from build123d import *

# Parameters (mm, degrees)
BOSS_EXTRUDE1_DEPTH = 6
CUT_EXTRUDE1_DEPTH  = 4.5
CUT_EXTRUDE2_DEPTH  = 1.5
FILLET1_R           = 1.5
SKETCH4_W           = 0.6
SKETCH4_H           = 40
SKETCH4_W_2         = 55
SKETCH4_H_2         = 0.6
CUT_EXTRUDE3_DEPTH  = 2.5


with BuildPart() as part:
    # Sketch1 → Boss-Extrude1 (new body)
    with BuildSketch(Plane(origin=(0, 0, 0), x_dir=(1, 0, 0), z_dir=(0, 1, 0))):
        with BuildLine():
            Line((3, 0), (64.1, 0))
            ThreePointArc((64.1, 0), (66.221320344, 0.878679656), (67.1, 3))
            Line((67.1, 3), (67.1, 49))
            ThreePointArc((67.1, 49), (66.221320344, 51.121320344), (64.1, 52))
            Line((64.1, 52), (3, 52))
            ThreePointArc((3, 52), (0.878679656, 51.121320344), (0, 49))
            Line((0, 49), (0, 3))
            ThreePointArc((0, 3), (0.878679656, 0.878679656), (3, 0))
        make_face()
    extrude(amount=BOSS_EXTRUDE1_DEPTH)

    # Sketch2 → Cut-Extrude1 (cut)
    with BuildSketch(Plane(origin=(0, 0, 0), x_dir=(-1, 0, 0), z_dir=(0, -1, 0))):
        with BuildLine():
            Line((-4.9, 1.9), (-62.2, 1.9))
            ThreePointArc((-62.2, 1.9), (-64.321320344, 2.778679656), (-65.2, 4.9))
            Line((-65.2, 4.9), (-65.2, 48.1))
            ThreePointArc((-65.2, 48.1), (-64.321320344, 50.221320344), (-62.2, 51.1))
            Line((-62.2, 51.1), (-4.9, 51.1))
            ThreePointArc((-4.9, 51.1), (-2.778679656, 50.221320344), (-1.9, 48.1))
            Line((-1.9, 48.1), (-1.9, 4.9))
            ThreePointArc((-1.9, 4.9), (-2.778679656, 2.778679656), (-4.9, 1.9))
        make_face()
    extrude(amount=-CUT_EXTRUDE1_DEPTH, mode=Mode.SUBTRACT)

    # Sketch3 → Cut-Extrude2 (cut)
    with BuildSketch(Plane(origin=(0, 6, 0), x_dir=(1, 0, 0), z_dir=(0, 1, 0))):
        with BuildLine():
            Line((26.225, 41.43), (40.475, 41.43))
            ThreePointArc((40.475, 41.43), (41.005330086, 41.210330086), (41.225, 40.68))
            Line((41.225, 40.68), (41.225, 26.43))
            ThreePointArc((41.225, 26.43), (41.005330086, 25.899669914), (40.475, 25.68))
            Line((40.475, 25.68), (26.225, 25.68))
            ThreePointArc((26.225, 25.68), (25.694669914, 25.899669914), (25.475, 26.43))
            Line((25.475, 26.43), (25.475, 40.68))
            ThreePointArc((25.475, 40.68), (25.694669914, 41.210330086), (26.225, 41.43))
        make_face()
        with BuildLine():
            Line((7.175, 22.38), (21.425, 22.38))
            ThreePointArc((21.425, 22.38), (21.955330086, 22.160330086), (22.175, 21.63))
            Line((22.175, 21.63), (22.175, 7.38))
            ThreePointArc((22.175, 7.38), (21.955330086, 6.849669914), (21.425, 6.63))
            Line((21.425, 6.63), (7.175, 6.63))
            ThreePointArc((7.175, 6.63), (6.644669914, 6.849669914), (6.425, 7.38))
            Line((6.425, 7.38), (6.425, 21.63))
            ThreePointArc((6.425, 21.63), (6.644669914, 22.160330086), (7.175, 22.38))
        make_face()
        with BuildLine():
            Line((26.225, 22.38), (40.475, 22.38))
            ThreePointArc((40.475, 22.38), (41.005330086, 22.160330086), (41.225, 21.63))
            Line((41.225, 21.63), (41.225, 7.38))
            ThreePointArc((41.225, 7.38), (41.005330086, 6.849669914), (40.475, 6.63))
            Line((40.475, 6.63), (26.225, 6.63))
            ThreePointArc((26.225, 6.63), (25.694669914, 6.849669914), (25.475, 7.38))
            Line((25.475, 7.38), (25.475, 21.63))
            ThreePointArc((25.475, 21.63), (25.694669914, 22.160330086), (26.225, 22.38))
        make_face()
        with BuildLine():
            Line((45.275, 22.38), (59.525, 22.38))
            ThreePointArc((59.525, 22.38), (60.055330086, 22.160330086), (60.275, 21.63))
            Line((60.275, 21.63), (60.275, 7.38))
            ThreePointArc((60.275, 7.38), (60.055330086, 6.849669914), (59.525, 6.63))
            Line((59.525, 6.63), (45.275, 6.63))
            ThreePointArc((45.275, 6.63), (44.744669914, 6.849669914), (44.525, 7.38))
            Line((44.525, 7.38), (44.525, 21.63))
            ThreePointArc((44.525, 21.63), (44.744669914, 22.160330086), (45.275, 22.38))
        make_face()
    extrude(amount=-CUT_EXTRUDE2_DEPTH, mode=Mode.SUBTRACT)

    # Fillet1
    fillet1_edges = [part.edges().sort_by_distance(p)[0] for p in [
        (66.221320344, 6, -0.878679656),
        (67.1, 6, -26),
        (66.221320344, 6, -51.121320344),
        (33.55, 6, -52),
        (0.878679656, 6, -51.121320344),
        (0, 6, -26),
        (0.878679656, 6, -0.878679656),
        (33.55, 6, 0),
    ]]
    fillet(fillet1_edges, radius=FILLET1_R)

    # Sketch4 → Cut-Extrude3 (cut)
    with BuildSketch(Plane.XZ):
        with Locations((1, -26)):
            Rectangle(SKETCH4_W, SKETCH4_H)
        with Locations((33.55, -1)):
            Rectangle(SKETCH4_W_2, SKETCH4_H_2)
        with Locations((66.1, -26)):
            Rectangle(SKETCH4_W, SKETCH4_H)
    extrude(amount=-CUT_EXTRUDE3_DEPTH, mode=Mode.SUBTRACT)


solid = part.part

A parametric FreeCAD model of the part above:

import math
import FreeCAD as App
import Part
import Sketcher
from FreeCAD import Vector
Q = App.Units.Quantity


def edges_at(feature, points):
    """Names of the edges that pass closest to the given points."""
    edges = feature.Shape.Edges
    near = lambda p: min(range(len(edges)), key=lambda i: edges[i].distToShape(Part.Vertex(*p))[0])
    return sorted({f"Edge{near(p) + 1}" for p in points})

doc = App.newDocument("Part")
body = doc.addObject("PartDesign::Body", "Body")

# Sketch on XZ plane
sketch1 = body.newObject("Sketcher::SketchObject", "Sketch")
sketch1.AttachmentSupport = (doc.getObject("XZ_Plane"), [""])
sketch1.MapMode = "FlatFace"
sketch1.addGeometry([
    Part.LineSegment(Vector(3, 0, 0), Vector(64.1, 0, 0)),  # 0
    Part.ArcOfCircle(Part.Circle(Vector(64.1, -3, 0), Vector(0, 0, 1), 3), math.radians(0), math.radians(90)),  # 1
    Part.LineSegment(Vector(67.1, -3, 0), Vector(67.1, -49, 0)),  # 2
    Part.ArcOfCircle(Part.Circle(Vector(64.1, -49, 0), Vector(0, 0, 1), 3), math.radians(-90), math.radians(0)),  # 3
    Part.LineSegment(Vector(64.1, -52, 0), Vector(3, -52, 0)),  # 4
    Part.ArcOfCircle(Part.Circle(Vector(3, -49, 0), Vector(0, 0, 1), 3), math.radians(180), math.radians(270)),  # 5
    Part.LineSegment(Vector(0, -49, 0), Vector(0, -3, 0)),  # 6
    Part.ArcOfCircle(Part.Circle(Vector(3, -3, 0), Vector(0, 0, 1), 3), math.radians(90), math.radians(180)),  # 7
], False)
sketch1.addConstraint([
    Sketcher.Constraint("Tangent", 0, 2, 1, 2),
    Sketcher.Constraint("Tangent", 1, 1, 2, 1),
    Sketcher.Constraint("Tangent", 2, 2, 3, 2),
    Sketcher.Constraint("Tangent", 3, 1, 4, 1),
    Sketcher.Constraint("Tangent", 4, 2, 5, 2),
    Sketcher.Constraint("Tangent", 5, 1, 6, 1),
    Sketcher.Constraint("Tangent", 6, 2, 7, 2),
    Sketcher.Constraint("Tangent", 7, 1, 0, 1),
    Sketcher.Constraint("Horizontal", 0),
    Sketcher.Constraint("Vertical", 2),
    Sketcher.Constraint("Horizontal", 4),
    Sketcher.Constraint("Vertical", 6),
    Sketcher.Constraint("Equal", 1, 3),
    Sketcher.Constraint("Equal", 3, 5),
    Sketcher.Constraint("Equal", 5, 7),
    Sketcher.Constraint("PointOnObject", 0, 2, -1),
    Sketcher.Constraint("PointOnObject", 5, 1, -2),
    Sketcher.Constraint("Radius", 1, Q("3 mm")),
    Sketcher.Constraint("DistanceY", 2, 2, 2, 1, Q("46 mm")),
    Sketcher.Constraint("DistanceX", 0, 1, 0, 2, Q("61.1 mm")),
])
pad1 = body.newObject("PartDesign::Pad", "Pad")
pad1.Profile = sketch1
pad1.Length = 6
pad1.Reversed = True

# Sketch on XZ plane
sketch2 = body.newObject("Sketcher::SketchObject", "Sketch001")
sketch2.AttachmentSupport = (doc.getObject("XZ_Plane"), [""])
sketch2.MapMode = "FlatFace"
sketch2.addGeometry([
    Part.LineSegment(Vector(62.2, -1.9, 0), Vector(4.9, -1.9, 0)),  # 0
    Part.ArcOfCircle(Part.Circle(Vector(4.9, -4.9, 0), Vector(0, 0, 1), 3), math.radians(90), math.radians(180)),  # 1
    Part.LineSegment(Vector(1.9, -4.9, 0), Vector(1.9, -48.1, 0)),  # 2
    Part.ArcOfCircle(Part.Circle(Vector(4.9, -48.1, 0), Vector(0, 0, 1), 3), math.radians(180), math.radians(270)),  # 3
    Part.LineSegment(Vector(4.9, -51.1, 0), Vector(62.2, -51.1, 0)),  # 4
    Part.ArcOfCircle(Part.Circle(Vector(62.2, -48.1, 0), Vector(0, 0, 1), 3), math.radians(-90), math.radians(0)),  # 5
    Part.LineSegment(Vector(65.2, -48.1, 0), Vector(65.2, -4.9, 0)),  # 6
    Part.ArcOfCircle(Part.Circle(Vector(62.2, -4.9, 0), Vector(0, 0, 1), 3), math.radians(0), math.radians(90)),  # 7
], False)
sketch2.addConstraint([
    Sketcher.Constraint("Tangent", 0, 2, 1, 1),
    Sketcher.Constraint("Tangent", 1, 2, 2, 1),
    Sketcher.Constraint("Tangent", 2, 2, 3, 1),
    Sketcher.Constraint("Tangent", 3, 2, 4, 1),
    Sketcher.Constraint("Tangent", 4, 2, 5, 1),
    Sketcher.Constraint("Tangent", 5, 2, 6, 1),
    Sketcher.Constraint("Tangent", 6, 2, 7, 1),
    Sketcher.Constraint("Tangent", 7, 2, 0, 1),
    Sketcher.Constraint("Horizontal", 0),
    Sketcher.Constraint("Vertical", 2),
    Sketcher.Constraint("Horizontal", 4),
    Sketcher.Constraint("Vertical", 6),
    Sketcher.Constraint("Equal", 1, 3),
    Sketcher.Constraint("Equal", 3, 5),
    Sketcher.Constraint("Equal", 5, 7),
    Sketcher.Constraint("Radius", 1, Q("3 mm")),
    Sketcher.Constraint("DistanceX", 0, 2, 0, 1, Q("57.3 mm")),
    Sketcher.Constraint("DistanceY", 2, 2, 2, 1, Q("43.2 mm")),
    Sketcher.Constraint("DistanceX", -1, 1, 1, 3, Q("4.9 mm")),
    Sketcher.Constraint("DistanceY", 1, 3, -1, 1, Q("4.9 mm")),
])
pocket1 = body.newObject("PartDesign::Pocket", "Pocket")
pocket1.Profile = sketch2
pocket1.Length = 4.5

# Sketch on XZ plane
sketch3 = body.newObject("Sketcher::SketchObject", "Sketch002")
sketch3.AttachmentSupport = (doc.getObject("XZ_Plane"), [""])
sketch3.MapMode = "FlatFace"
sketch3.AttachmentOffset = App.Placement(Vector(0, 0, -6), App.Rotation())
sketch3.addGeometry([
    Part.LineSegment(Vector(40.5, -41.4, 0), Vector(26.2, -41.4, 0)),  # 0
    Part.ArcOfCircle(Part.Circle(Vector(26.2, -40.7, 0), Vector(0, 0, 1), 0.8), math.radians(180), math.radians(270)),  # 1
    Part.LineSegment(Vector(25.5, -40.7, 0), Vector(25.5, -26.4, 0)),  # 2
    Part.ArcOfCircle(Part.Circle(Vector(26.2, -26.4, 0), Vector(0, 0, 1), 0.8), math.radians(90), math.radians(180)),  # 3
    Part.LineSegment(Vector(26.2, -25.7, 0), Vector(40.5, -25.7, 0)),  # 4
    Part.ArcOfCircle(Part.Circle(Vector(40.5, -26.4, 0), Vector(0, 0, 1), 0.8), math.radians(0), math.radians(90)),  # 5
    Part.LineSegment(Vector(41.2, -26.4, 0), Vector(41.2, -40.7, 0)),  # 6
    Part.ArcOfCircle(Part.Circle(Vector(40.5, -40.7, 0), Vector(0, 0, 1), 0.8), math.radians(-90), math.radians(0)),  # 7
    Part.LineSegment(Vector(21.4, -22.4, 0), Vector(7.2, -22.4, 0)),  # 8
    Part.ArcOfCircle(Part.Circle(Vector(7.2, -21.6, 0), Vector(0, 0, 1), 0.8), math.radians(180), math.radians(270)),  # 9
    Part.LineSegment(Vector(6.4, -21.6, 0), Vector(6.4, -7.4, 0)),  # 10
    Part.ArcOfCircle(Part.Circle(Vector(7.2, -7.4, 0), Vector(0, 0, 1), 0.8), math.radians(90), math.radians(180)),  # 11
    Part.LineSegment(Vector(7.2, -6.6, 0), Vector(21.4, -6.6, 0)),  # 12
    Part.ArcOfCircle(Part.Circle(Vector(21.4, -7.4, 0), Vector(0, 0, 1), 0.8), math.radians(0), math.radians(90)),  # 13
    Part.LineSegment(Vector(22.2, -7.4, 0), Vector(22.2, -21.6, 0)),  # 14
    Part.ArcOfCircle(Part.Circle(Vector(21.4, -21.6, 0), Vector(0, 0, 1), 0.8), math.radians(-90), math.radians(0)),  # 15
    Part.LineSegment(Vector(40.5, -22.4, 0), Vector(26.2, -22.4, 0)),  # 16
    Part.ArcOfCircle(Part.Circle(Vector(26.2, -21.6, 0), Vector(0, 0, 1), 0.8), math.radians(180), math.radians(270)),  # 17
    Part.LineSegment(Vector(25.5, -21.6, 0), Vector(25.5, -7.4, 0)),  # 18
    Part.ArcOfCircle(Part.Circle(Vector(26.2, -7.4, 0), Vector(0, 0, 1), 0.8), math.radians(90), math.radians(180)),  # 19
    Part.LineSegment(Vector(26.2, -6.6, 0), Vector(40.5, -6.6, 0)),  # 20
    Part.ArcOfCircle(Part.Circle(Vector(40.5, -7.4, 0), Vector(0, 0, 1), 0.8), math.radians(0), math.radians(90)),  # 21
    Part.LineSegment(Vector(41.2, -7.4, 0), Vector(41.2, -21.6, 0)),  # 22
    Part.ArcOfCircle(Part.Circle(Vector(40.5, -21.6, 0), Vector(0, 0, 1), 0.8), math.radians(-90), math.radians(0)),  # 23
    Part.LineSegment(Vector(59.5, -22.4, 0), Vector(45.3, -22.4, 0)),  # 24
    Part.ArcOfCircle(Part.Circle(Vector(45.3, -21.6, 0), Vector(0, 0, 1), 0.8), math.radians(180), math.radians(270)),  # 25
    Part.LineSegment(Vector(44.5, -21.6, 0), Vector(44.5, -7.4, 0)),  # 26
    Part.ArcOfCircle(Part.Circle(Vector(45.3, -7.4, 0), Vector(0, 0, 1), 0.8), math.radians(90), math.radians(180)),  # 27
    Part.LineSegment(Vector(45.3, -6.6, 0), Vector(59.5, -6.6, 0)),  # 28
    Part.ArcOfCircle(Part.Circle(Vector(59.5, -7.4, 0), Vector(0, 0, 1), 0.8), math.radians(0), math.radians(90)),  # 29
    Part.LineSegment(Vector(60.3, -7.4, 0), Vector(60.3, -21.6, 0)),  # 30
    Part.ArcOfCircle(Part.Circle(Vector(59.5, -21.6, 0), Vector(0, 0, 1), 0.8), math.radians(-90), math.radians(0)),  # 31
], False)
sketch3.addConstraint([
    Sketcher.Constraint("Tangent", 0, 2, 1, 2),
    Sketcher.Constraint("Tangent", 1, 1, 2, 1),
    Sketcher.Constraint("Tangent", 2, 2, 3, 2),
    Sketcher.Constraint("Tangent", 3, 1, 4, 1),
    Sketcher.Constraint("Tangent", 4, 2, 5, 2),
    Sketcher.Constraint("Tangent", 5, 1, 6, 1),
    Sketcher.Constraint("Tangent", 6, 2, 7, 2),
    Sketcher.Constraint("Tangent", 7, 1, 0, 1),
    Sketcher.Constraint("Tangent", 8, 2, 9, 2),
    Sketcher.Constraint("Tangent", 9, 1, 10, 1),
    Sketcher.Constraint("Tangent", 10, 2, 11, 2),
    Sketcher.Constraint("Tangent", 11, 1, 12, 1),
    Sketcher.Constraint("Tangent", 12, 2, 13, 2),
    Sketcher.Constraint("Tangent", 13, 1, 14, 1),
    Sketcher.Constraint("Tangent", 14, 2, 15, 2),
    Sketcher.Constraint("Tangent", 15, 1, 8, 1),
    Sketcher.Constraint("Tangent", 16, 2, 17, 2),
    Sketcher.Constraint("Tangent", 17, 1, 18, 1),
    Sketcher.Constraint("Tangent", 18, 2, 19, 2),
    Sketcher.Constraint("Tangent", 19, 1, 20, 1),
    Sketcher.Constraint("Tangent", 20, 2, 21, 2),
    Sketcher.Constraint("Tangent", 21, 1, 22, 1),
    Sketcher.Constraint("Tangent", 22, 2, 23, 2),
    Sketcher.Constraint("Tangent", 23, 1, 16, 1),
    Sketcher.Constraint("Tangent", 24, 2, 25, 2),
    Sketcher.Constraint("Tangent", 25, 1, 26, 1),
    Sketcher.Constraint("Tangent", 26, 2, 27, 2),
    Sketcher.Constraint("Tangent", 27, 1, 28, 1),
    Sketcher.Constraint("Tangent", 28, 2, 29, 2),
    Sketcher.Constraint("Tangent", 29, 1, 30, 1),
    Sketcher.Constraint("Tangent", 30, 2, 31, 2),
    Sketcher.Constraint("Tangent", 31, 1, 24, 1),
    Sketcher.Constraint("Horizontal", 0),
    Sketcher.Constraint("Vertical", 2),
    Sketcher.Constraint("Horizontal", 4),
    Sketcher.Constraint("Vertical", 6),
    Sketcher.Constraint("Horizontal", 8),
    Sketcher.Constraint("Vertical", 10),
    Sketcher.Constraint("Horizontal", 12),
    Sketcher.Constraint("Vertical", 14),
    Sketcher.Constraint("Horizontal", 16),
    Sketcher.Constraint("Vertical", 18),
    Sketcher.Constraint("Horizontal", 20),
    Sketcher.Constraint("Vertical", 22),
    Sketcher.Constraint("Horizontal", 24),
    Sketcher.Constraint("Vertical", 26),
    Sketcher.Constraint("Horizontal", 28),
    Sketcher.Constraint("Vertical", 30),
    Sketcher.Constraint("Equal", 1, 3),
    Sketcher.Constraint("Equal", 3, 5),
    Sketcher.Constraint("Equal", 5, 7),
    Sketcher.Constraint("Equal", 7, 9),
    Sketcher.Constraint("Equal", 9, 11),
    Sketcher.Constraint("Equal", 11, 13),
    Sketcher.Constraint("Equal", 13, 15),
    Sketcher.Constraint("Equal", 15, 17),
    Sketcher.Constraint("Equal", 17, 19),
    Sketcher.Constraint("Equal", 19, 21),
    Sketcher.Constraint("Equal", 21, 23),
    Sketcher.Constraint("Equal", 23, 25),
    Sketcher.Constraint("Equal", 25, 27),
    Sketcher.Constraint("Equal", 27, 29),
    Sketcher.Constraint("Equal", 29, 31),
    Sketcher.Constraint("Horizontal", 15, 3, 17, 3),
    Sketcher.Constraint("Horizontal", 13, 3, 19, 3),
    Sketcher.Constraint("Horizontal", 23, 3, 25, 3),
    Sketcher.Constraint("Horizontal", 21, 3, 27, 3),
    Sketcher.Constraint("Vertical", 3, 3, 17, 3),
    Sketcher.Constraint("Vertical", 7, 3, 21, 3),
    Sketcher.Constraint("Equal", 4, 8),
    Sketcher.Constraint("Equal", 20, 24),
    Sketcher.Constraint("Equal", 28, 2),
    Sketcher.Constraint("Equal", 6, 10),
    Sketcher.Constraint("Radius", 1, Q("0.75 mm")),
    Sketcher.Constraint("DistanceY", 0, 2, 3, 3, Q("15 mm")),
    Sketcher.Constraint("DistanceY", 3, 3, 9, 3, Q("4.8 mm")),
    Sketcher.Constraint("DistanceX", 9, 3, 5, 3, Q("33.3 mm")),
    Sketcher.Constraint("DistanceX", 23, 3, 25, 3, Q("4.8 mm")),
    Sketcher.Constraint("DistanceY", 1, 3, -1, 1, Q("40.68 mm")),
    Sketcher.Constraint("DistanceX", -1, 1, 1, 3, Q("26.225 mm")),
])
pocket2 = body.newObject("PartDesign::Pocket", "Pocket001")
pocket2.Profile = sketch3
pocket2.Length = 1.5
pocket2.Reversed = True
doc.recompute()

fillet = body.newObject("PartDesign::Fillet", "Fillet")
fillet.Base = (pocket2, edges_at(pocket2, [
    (66.221, 6, -0.879),
    (67.1, 6, -26),
    (66.221, 6, -51.121),
    (33.55, 6, -52),
    (0.879, 6, -51.121),
    (0, 6, -26),
    (0.879, 6, -0.879),
    (33.55, 6, 0),
]))
fillet.Radius = 1.5

# Sketch on XZ plane
sketch4 = body.newObject("Sketcher::SketchObject", "Sketch003")
sketch4.AttachmentSupport = (doc.getObject("XZ_Plane"), [""])
sketch4.MapMode = "FlatFace"
sketch4.addGeometry([
    Part.LineSegment(Vector(0.7, -6, 0), Vector(0.7, -46, 0)),  # 0
    Part.LineSegment(Vector(0.7, -46, 0), Vector(1.3, -46, 0)),  # 1
    Part.LineSegment(Vector(1.3, -46, 0), Vector(1.3, -6, 0)),  # 2
    Part.LineSegment(Vector(1.3, -6, 0), Vector(0.7, -6, 0)),  # 3
    Part.LineSegment(Vector(6, -0.7, 0), Vector(6, -1.3, 0)),  # 4
    Part.LineSegment(Vector(6, -1.3, 0), Vector(61, -1.3, 0)),  # 5
    Part.LineSegment(Vector(61, -1.3, 0), Vector(61, -0.7, 0)),  # 6
    Part.LineSegment(Vector(61, -0.7, 0), Vector(6, -0.7, 0)),  # 7
    Part.LineSegment(Vector(65.8, -6, 0), Vector(65.8, -46, 0)),  # 8
    Part.LineSegment(Vector(65.8, -46, 0), Vector(66.4, -46, 0)),  # 9
    Part.LineSegment(Vector(66.4, -46, 0), Vector(66.4, -6, 0)),  # 10
    Part.LineSegment(Vector(66.4, -6, 0), Vector(65.8, -6, 0)),  # 11
], False)
sketch4.addConstraint([
    Sketcher.Constraint("Coincident", 0, 2, 1, 1),
    Sketcher.Constraint("Coincident", 1, 2, 2, 1),
    Sketcher.Constraint("Coincident", 2, 2, 3, 1),
    Sketcher.Constraint("Coincident", 3, 2, 0, 1),
    Sketcher.Constraint("Coincident", 4, 2, 5, 1),
    Sketcher.Constraint("Coincident", 5, 2, 6, 1),
    Sketcher.Constraint("Coincident", 6, 2, 7, 1),
    Sketcher.Constraint("Coincident", 7, 2, 4, 1),
    Sketcher.Constraint("Coincident", 8, 2, 9, 1),
    Sketcher.Constraint("Coincident", 9, 2, 10, 1),
    Sketcher.Constraint("Coincident", 10, 2, 11, 1),
    Sketcher.Constraint("Coincident", 11, 2, 8, 1),
    Sketcher.Constraint("Vertical", 0),
    Sketcher.Constraint("Horizontal", 1),
    Sketcher.Constraint("Vertical", 2),
    Sketcher.Constraint("Horizontal", 3),
    Sketcher.Constraint("Vertical", 4),
    Sketcher.Constraint("Horizontal", 5),
    Sketcher.Constraint("Vertical", 6),
    Sketcher.Constraint("Horizontal", 7),
    Sketcher.Constraint("Vertical", 8),
    Sketcher.Constraint("Horizontal", 9),
    Sketcher.Constraint("Vertical", 10),
    Sketcher.Constraint("Horizontal", 11),
    Sketcher.Constraint("Horizontal", 1, 2, 8, 2),
    Sketcher.Constraint("Horizontal", 3, 2, 10, 2),
    Sketcher.Constraint("Equal", 3, 9),
    Sketcher.Constraint("Equal", 11, 4),
    Sketcher.Constraint("DistanceX", 5, 1, 5, 2, Q("55 mm")),
    Sketcher.Constraint("DistanceY", 0, 2, 0, 1, Q("40 mm")),
    Sketcher.Constraint("DistanceX", 1, 1, 1, 2, Q("0.6 mm")),
    Sketcher.Constraint("DistanceY", 0, 2, -1, 1, Q("46 mm")),
    Sketcher.Constraint("DistanceX", -1, 1, 0, 2, Q("0.7 mm")),
    Sketcher.Constraint("DistanceY", 4, 2, -1, 1, Q("1.3 mm")),
    Sketcher.Constraint("DistanceX", -1, 1, 8, 2, Q("65.8 mm")),
    Sketcher.Constraint("DistanceX", -1, 1, 4, 2, Q("6.05 mm")),
])
pocket3 = body.newObject("PartDesign::Pocket", "Pocket002")
pocket3.Profile = sketch4
pocket3.Length = 2.5

doc.recompute()
